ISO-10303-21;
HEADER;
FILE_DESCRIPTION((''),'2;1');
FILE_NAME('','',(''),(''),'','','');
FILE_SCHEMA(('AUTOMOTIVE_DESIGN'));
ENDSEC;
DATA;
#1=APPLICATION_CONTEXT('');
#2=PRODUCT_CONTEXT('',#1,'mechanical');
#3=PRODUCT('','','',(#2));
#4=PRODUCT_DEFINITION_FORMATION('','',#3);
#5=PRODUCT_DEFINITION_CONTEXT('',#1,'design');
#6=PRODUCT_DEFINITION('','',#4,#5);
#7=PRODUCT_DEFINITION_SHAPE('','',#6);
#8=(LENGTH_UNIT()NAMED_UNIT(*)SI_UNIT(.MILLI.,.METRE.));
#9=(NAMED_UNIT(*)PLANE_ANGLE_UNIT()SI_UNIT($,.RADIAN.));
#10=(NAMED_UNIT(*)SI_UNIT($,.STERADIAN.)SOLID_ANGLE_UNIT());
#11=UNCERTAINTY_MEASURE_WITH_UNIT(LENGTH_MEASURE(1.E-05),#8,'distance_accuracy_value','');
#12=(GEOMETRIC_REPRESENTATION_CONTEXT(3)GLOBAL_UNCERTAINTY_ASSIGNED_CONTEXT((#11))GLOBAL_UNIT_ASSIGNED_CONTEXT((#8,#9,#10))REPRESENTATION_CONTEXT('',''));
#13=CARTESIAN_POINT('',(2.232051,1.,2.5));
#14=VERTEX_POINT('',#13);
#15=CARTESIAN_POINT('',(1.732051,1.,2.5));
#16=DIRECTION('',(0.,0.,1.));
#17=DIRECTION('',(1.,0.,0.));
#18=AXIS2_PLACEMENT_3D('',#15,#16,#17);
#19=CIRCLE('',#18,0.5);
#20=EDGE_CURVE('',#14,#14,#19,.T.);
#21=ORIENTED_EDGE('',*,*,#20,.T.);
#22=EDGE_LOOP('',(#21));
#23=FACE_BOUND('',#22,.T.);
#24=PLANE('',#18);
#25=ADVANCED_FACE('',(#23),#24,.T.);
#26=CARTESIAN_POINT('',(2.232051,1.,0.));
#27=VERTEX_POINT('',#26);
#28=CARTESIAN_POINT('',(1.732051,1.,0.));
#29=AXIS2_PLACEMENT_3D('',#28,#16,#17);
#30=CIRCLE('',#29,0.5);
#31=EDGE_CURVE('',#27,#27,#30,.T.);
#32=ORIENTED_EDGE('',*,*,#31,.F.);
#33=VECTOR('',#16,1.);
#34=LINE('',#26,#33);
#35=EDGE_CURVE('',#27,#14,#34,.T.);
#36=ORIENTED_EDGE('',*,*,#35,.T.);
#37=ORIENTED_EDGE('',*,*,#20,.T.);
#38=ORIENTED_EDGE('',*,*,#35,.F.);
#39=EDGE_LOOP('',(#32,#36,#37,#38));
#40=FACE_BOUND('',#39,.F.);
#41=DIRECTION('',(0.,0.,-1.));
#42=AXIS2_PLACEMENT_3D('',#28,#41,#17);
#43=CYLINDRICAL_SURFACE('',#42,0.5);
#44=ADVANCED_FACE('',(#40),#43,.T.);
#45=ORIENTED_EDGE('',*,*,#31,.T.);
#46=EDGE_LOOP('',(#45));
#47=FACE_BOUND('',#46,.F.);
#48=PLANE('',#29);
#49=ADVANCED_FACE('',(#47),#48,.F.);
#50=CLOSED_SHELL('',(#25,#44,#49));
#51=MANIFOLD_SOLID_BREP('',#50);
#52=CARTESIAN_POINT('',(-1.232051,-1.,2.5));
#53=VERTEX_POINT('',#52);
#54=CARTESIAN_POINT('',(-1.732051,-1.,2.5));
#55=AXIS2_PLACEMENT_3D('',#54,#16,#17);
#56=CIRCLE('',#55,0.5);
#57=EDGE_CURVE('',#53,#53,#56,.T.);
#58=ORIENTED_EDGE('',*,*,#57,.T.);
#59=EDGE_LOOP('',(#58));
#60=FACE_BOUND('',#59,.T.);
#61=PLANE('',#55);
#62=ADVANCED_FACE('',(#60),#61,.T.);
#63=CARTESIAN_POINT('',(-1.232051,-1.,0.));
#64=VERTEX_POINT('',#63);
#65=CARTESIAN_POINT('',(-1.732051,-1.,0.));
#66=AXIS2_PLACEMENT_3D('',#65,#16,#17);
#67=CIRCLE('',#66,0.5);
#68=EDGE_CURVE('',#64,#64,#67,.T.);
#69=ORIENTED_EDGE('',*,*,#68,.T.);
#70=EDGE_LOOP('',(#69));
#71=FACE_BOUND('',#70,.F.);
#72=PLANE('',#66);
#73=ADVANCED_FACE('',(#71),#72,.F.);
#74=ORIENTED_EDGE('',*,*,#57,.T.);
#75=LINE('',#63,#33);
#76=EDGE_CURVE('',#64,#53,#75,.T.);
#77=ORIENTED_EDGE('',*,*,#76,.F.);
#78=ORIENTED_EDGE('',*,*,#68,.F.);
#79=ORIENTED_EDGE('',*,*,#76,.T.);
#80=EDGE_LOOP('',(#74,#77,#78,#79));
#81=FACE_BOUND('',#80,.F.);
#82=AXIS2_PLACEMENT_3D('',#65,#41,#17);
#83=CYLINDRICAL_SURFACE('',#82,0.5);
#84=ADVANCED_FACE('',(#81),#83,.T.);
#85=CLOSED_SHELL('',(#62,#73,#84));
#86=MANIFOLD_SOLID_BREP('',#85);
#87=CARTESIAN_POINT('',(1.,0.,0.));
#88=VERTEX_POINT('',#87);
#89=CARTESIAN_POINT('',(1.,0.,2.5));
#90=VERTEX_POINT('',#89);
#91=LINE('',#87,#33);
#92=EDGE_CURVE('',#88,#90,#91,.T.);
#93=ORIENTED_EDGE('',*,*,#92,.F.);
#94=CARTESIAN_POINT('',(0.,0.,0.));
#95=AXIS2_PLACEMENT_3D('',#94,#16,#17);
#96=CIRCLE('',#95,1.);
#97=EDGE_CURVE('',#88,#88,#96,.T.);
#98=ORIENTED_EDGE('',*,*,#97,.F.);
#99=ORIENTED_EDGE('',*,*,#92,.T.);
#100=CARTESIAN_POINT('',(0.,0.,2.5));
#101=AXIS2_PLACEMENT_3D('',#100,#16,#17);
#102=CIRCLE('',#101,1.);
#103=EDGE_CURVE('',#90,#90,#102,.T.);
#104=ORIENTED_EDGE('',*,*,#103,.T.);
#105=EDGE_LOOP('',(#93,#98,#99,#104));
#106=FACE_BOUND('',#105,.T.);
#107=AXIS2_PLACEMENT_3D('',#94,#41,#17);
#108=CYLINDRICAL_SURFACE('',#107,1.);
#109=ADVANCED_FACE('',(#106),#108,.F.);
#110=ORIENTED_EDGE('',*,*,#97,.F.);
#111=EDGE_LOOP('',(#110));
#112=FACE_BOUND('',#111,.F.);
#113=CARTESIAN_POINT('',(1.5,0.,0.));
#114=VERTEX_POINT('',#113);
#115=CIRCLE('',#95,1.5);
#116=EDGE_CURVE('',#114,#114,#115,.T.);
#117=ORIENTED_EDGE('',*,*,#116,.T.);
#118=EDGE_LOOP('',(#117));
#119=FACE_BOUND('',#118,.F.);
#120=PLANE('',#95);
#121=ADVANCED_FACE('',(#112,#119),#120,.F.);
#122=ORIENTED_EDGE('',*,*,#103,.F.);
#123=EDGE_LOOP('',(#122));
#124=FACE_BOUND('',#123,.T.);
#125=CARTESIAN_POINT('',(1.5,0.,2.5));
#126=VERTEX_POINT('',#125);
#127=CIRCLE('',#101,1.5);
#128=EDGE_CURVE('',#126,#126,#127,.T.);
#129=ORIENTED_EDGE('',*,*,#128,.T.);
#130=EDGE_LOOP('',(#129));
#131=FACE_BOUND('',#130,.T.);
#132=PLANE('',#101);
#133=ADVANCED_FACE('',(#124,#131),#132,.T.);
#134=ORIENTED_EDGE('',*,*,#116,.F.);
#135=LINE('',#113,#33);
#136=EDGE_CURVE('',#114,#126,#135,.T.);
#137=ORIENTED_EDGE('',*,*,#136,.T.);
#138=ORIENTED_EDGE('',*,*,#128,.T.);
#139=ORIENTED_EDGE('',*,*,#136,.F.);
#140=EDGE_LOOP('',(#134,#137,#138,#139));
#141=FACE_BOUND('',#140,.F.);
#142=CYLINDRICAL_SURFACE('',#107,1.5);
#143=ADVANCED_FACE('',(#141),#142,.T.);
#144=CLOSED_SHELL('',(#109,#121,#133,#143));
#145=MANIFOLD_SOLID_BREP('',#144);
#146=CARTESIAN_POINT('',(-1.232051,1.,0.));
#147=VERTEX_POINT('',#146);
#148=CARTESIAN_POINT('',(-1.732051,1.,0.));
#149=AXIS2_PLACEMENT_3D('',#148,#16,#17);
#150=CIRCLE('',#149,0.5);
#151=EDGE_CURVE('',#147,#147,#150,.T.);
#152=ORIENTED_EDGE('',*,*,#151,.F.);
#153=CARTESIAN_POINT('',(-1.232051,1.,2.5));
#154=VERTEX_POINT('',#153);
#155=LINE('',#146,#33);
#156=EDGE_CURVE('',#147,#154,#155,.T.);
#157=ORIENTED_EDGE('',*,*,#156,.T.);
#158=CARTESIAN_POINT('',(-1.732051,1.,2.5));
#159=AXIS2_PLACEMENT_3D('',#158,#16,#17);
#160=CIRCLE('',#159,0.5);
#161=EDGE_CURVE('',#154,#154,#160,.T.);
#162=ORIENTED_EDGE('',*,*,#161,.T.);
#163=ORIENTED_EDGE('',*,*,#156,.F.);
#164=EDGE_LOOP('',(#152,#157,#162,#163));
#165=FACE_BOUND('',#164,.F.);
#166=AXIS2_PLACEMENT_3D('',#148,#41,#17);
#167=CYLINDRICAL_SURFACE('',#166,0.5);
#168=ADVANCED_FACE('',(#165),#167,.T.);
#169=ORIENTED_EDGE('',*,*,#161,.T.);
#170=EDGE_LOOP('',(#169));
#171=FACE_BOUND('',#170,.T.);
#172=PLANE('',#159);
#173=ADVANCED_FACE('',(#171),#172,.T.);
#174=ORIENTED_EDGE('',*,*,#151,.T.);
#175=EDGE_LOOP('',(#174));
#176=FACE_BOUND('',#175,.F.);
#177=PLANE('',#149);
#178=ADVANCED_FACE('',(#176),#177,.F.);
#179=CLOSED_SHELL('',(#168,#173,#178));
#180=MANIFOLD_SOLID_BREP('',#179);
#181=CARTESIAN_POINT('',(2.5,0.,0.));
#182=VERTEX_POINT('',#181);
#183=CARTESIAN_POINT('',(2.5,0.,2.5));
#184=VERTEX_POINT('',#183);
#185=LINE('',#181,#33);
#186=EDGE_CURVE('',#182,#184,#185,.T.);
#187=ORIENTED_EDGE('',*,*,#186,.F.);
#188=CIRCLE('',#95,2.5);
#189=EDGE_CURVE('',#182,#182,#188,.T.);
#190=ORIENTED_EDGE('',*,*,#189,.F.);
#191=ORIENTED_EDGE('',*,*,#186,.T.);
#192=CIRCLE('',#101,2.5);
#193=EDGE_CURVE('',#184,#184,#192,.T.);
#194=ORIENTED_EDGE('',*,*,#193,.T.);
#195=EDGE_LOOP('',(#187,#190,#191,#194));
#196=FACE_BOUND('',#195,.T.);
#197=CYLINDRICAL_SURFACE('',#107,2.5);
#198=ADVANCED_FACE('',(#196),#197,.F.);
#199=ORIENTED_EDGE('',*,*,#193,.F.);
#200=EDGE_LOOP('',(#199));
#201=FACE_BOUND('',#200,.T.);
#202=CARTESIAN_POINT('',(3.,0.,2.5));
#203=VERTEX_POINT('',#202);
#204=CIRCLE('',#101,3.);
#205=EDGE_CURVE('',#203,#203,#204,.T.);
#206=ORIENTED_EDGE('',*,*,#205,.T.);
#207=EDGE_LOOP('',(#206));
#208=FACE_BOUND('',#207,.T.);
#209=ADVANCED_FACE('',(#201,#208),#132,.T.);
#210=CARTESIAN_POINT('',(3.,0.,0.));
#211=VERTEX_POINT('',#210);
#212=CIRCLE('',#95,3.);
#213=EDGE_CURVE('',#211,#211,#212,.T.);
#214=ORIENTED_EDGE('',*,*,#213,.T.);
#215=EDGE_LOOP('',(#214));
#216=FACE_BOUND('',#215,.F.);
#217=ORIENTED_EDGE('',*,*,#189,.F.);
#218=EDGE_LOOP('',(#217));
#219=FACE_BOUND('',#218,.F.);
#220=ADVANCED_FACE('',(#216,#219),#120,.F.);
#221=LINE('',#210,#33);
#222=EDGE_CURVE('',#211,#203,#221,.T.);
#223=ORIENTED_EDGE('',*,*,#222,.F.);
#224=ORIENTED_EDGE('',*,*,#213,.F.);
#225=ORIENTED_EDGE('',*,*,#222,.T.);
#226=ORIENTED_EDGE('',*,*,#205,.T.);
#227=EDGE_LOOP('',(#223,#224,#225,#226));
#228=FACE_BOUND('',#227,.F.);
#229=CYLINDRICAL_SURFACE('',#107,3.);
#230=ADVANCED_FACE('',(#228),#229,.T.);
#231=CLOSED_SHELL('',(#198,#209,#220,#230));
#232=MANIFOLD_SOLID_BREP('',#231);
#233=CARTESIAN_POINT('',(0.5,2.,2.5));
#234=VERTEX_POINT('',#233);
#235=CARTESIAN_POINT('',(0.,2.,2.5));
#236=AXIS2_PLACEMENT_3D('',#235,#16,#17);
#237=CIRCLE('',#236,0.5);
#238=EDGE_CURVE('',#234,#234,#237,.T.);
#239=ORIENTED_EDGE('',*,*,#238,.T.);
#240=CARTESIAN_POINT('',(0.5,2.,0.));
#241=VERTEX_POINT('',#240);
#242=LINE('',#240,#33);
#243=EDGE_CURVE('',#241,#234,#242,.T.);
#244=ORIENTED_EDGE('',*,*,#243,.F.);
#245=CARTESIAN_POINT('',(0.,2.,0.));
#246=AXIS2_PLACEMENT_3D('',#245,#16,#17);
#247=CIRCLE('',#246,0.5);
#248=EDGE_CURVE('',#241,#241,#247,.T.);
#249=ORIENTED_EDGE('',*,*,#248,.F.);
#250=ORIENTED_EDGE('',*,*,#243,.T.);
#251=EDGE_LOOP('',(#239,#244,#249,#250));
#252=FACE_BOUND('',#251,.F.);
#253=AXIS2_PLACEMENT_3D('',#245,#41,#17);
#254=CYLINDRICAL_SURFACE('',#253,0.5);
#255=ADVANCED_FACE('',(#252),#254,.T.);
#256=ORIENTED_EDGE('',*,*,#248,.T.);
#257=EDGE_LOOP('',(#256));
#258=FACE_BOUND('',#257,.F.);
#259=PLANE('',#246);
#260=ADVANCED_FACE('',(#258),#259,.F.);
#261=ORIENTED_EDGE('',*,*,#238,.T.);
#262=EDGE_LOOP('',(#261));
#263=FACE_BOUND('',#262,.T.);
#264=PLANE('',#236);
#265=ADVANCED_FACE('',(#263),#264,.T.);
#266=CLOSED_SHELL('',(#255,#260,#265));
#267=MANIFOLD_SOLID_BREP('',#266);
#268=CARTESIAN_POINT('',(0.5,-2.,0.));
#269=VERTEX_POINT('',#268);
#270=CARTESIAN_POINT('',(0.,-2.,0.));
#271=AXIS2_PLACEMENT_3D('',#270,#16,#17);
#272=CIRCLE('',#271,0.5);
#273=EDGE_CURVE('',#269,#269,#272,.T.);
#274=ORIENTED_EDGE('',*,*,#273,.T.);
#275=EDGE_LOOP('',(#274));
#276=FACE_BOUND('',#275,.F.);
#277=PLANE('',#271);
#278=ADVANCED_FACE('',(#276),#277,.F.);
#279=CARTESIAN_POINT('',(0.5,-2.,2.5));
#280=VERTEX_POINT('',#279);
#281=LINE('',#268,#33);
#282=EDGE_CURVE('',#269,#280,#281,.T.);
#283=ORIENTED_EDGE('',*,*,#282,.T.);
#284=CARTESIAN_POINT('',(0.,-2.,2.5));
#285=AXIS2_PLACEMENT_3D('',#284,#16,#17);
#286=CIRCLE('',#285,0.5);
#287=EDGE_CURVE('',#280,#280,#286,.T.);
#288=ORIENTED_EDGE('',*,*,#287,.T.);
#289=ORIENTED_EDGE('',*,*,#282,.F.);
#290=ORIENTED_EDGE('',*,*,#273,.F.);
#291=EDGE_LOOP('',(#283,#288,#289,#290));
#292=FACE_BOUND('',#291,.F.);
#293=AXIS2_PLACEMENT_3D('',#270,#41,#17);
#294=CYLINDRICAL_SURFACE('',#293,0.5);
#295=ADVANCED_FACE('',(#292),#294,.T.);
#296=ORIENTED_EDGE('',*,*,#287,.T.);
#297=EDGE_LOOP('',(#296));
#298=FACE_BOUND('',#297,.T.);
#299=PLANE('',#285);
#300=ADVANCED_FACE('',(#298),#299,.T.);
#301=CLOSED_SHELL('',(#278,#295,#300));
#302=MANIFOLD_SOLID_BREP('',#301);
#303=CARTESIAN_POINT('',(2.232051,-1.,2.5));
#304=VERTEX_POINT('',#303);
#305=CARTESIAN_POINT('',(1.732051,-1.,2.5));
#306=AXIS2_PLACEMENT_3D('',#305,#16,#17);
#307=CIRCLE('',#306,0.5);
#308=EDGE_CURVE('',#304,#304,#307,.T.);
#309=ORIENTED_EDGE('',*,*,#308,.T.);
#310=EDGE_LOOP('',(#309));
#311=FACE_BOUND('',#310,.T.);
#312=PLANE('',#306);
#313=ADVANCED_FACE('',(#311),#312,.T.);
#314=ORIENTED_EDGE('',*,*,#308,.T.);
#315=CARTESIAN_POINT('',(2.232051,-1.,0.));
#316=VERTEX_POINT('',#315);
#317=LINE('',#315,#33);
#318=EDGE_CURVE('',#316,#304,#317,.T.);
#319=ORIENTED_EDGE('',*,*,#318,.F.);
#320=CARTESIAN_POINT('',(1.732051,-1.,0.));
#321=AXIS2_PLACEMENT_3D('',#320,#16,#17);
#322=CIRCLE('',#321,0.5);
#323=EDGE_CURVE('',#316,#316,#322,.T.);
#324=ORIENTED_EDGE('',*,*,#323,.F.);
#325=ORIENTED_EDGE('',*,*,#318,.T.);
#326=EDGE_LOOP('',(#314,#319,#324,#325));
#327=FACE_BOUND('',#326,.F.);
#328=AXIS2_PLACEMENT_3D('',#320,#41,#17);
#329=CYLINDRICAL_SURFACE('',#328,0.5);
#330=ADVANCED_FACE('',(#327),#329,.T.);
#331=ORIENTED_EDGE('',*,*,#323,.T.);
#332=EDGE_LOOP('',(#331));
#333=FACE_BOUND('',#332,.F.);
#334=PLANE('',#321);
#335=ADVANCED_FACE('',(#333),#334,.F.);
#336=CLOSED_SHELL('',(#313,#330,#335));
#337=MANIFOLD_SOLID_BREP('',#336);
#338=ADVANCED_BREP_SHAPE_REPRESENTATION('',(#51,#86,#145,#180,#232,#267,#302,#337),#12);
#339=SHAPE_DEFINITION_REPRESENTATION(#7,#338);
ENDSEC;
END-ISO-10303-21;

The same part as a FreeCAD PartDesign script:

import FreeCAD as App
import Part
import Sketcher

V = App.Vector
Q = App.Units.Quantity

doc = App.newDocument("Part")
params = doc.addObject("Spreadsheet::Sheet", "Params")
for row, (alias, value) in enumerate([
    ("sketch1_diameter", "3 mm"),
    ("sketch1_diameter2", "2 mm"),
    ("pad1_length", "2.5 mm"),
    ("sketch2_diameter", "1 mm"),
    ("pad2_length", "2.5 mm"),
    ("sketch3_diameter", "6 mm"),
    ("sketch3_diameter2", "5 mm"),
    ("pad3_length", "2.5 mm"),
    ("sketch4_diameter", "1 mm"),
    ("pad4_length", "2.5 mm"),
    ("sketch5_diameter", "1 mm"),
    ("pad5_length", "2.5 mm"),
    ("sketch6_diameter", "1 mm"),
    ("pad6_length", "2.5 mm"),
    ("sketch7_diameter", "1 mm"),
    ("pad7_length", "2.5 mm"),
    ("sketch8_diameter", "1 mm"),
    ("pad8_length", "2.5 mm"),
], start=1):
    params.set(f"A{row}", alias)
    params.set(f"B{row}", "=" + value)
    params.setAlias(f"B{row}", alias)

body = doc.addObject("PartDesign::Body", "Body")

sketch1 = body.newObject("Sketcher::SketchObject", "Sketch")
sketch1.AttachmentSupport = (doc.getObject("XY_Plane"), [""])
sketch1.MapMode = "FlatFace"
sketch1.addGeometry([
    Part.Circle(V(0, 0, 0), V(0, 0, 1), 1.5),
    Part.Circle(V(0, 0, 0), V(0, 0, 1), 1),
], False)
sketch1.addConstraint([
    Sketcher.Constraint("Coincident", 0, 3, -1, 1),
    Sketcher.Constraint("Coincident", 1, 3, -1, 1),
    Sketcher.Constraint("Diameter", 0, Q("3 mm")),
    Sketcher.Constraint("Diameter", 1, Q("2 mm")),
])
sketch1.setExpression("Constraints[2]", "Params.sketch1_diameter")
sketch1.setExpression("Constraints[3]", "Params.sketch1_diameter2")
pad1 = body.newObject("PartDesign::Pad", "Pad")
pad1.Profile = sketch1
pad1.setExpression("Length", "Params.pad1_length")
body2 = doc.addObject("PartDesign::Body", "Body001")

sketch2 = body2.newObject("Sketcher::SketchObject", "Sketch001")
sketch2.AttachmentSupport = (doc.getObject("XY_Plane001"), [""])
sketch2.MapMode = "FlatFace"
sketch2.addGeometry(Part.Circle(V(0, 2, 0), V(0, 0, 1), 0.5), False)
sketch2.addConstraint([
    Sketcher.Constraint("PointOnObject", 0, 3, -2),
    Sketcher.Constraint("Diameter", 0, Q("1 mm")),
    Sketcher.Constraint("DistanceY", -1, 1, 0, 3, Q("2 mm")),
])
sketch2.setExpression("Constraints[1]", "Params.sketch2_diameter")
pad2 = body2.newObject("PartDesign::Pad", "Pad001")
pad2.Profile = sketch2
pad2.setExpression("Length", "Params.pad2_length")
body3 = doc.addObject("PartDesign::Body", "Body002")

sketch3 = body3.newObject("Sketcher::SketchObject", "Sketch002")
sketch3.AttachmentSupport = (doc.getObject("XY_Plane002"), [""])
sketch3.MapMode = "FlatFace"
sketch3.addGeometry([
    Part.Circle(V(0, 0, 0), V(0, 0, 1), 3),
    Part.Circle(V(0, 0, 0), V(0, 0, 1), 2.5),
], False)
sketch3.addConstraint([
    Sketcher.Constraint("Coincident", 0, 3, -1, 1),
    Sketcher.Constraint("Coincident", 1, 3, -1, 1),
    Sketcher.Constraint("Diameter", 0, Q("6 mm")),
    Sketcher.Constraint("Diameter", 1, Q("5 mm")),
])
sketch3.setExpression("Constraints[2]", "Params.sketch3_diameter")
sketch3.setExpression("Constraints[3]", "Params.sketch3_diameter2")
pad3 = body3.newObject("PartDesign::Pad", "Pad002")
pad3.Profile = sketch3
pad3.setExpression("Length", "Params.pad3_length")
body4 = doc.addObject("PartDesign::Body", "Body003")

sketch4 = body4.newObject("Sketcher::SketchObject", "Sketch003")
sketch4.AttachmentSupport = (doc.getObject("XY_Plane003"), [""])
sketch4.MapMode = "FlatFace"
sketch4.addGeometry(Part.Circle(V(-1.7, 1, 0), V(0, 0, 1), 0.5), False)
sketch4.addConstraint([
    Sketcher.Constraint("Diameter", 0, Q("1 mm")),
    Sketcher.Constraint("DistanceY", -1, 1, 0, 3, Q("1 mm")),
    Sketcher.Constraint("DistanceX", 0, 3, -1, 1, Q("1.732051 mm")),
])
sketch4.setExpression("Constraints[0]", "Params.sketch4_diameter")
pad4 = body4.newObject("PartDesign::Pad", "Pad003")
pad4.Profile = sketch4
pad4.setExpression("Length", "Params.pad4_length")
body5 = doc.addObject("PartDesign::Body", "Body004")

sketch5 = body5.newObject("Sketcher::SketchObject", "Sketch004")
sketch5.AttachmentSupport = (doc.getObject("XY_Plane004"), [""])
sketch5.MapMode = "FlatFace"
sketch5.addGeometry(Part.Circle(V(1.7, 1, 0), V(0, 0, 1), 0.5), False)
sketch5.addConstraint([
    Sketcher.Constraint("Diameter", 0, Q("1 mm")),
    Sketcher.Constraint("DistanceY", -1, 1, 0, 3, Q("1 mm")),
    Sketcher.Constraint("DistanceX", -1, 1, 0, 3, Q("1.732051 mm")),
])
sketch5.setExpression("Constraints[0]", "Params.sketch5_diameter")
pad5 = body5.newObject("PartDesign::Pad", "Pad004")
pad5.Profile = sketch5
pad5.setExpression("Length", "Params.pad5_length")
body6 = doc.addObject("PartDesign::Body", "Body005")

sketch6 = body6.newObject("Sketcher::SketchObject", "Sketch005")
sketch6.AttachmentSupport = (doc.getObject("XY_Plane005"), [""])
sketch6.MapMode = "FlatFace"
sketch6.addGeometry(Part.Circle(V(1.7, -1, 0), V(0, 0, 1), 0.5), False)
sketch6.addConstraint([
    Sketcher.Constraint("Diameter", 0, Q("1 mm")),
    Sketcher.Constraint("DistanceY", 0, 3, -1, 1, Q("1 mm")),
    Sketcher.Constraint("DistanceX", -1, 1, 0, 3, Q("1.732051 mm")),
])
sketch6.setExpression("Constraints[0]", "Params.sketch6_diameter")
pad6 = body6.newObject("PartDesign::Pad", "Pad005")
pad6.Profile = sketch6
pad6.setExpression("Length", "Params.pad6_length")
body7 = doc.addObject("PartDesign::Body", "Body006")

sketch7 = body7.newObject("Sketcher::SketchObject", "Sketch006")
sketch7.AttachmentSupport = (doc.getObject("XY_Plane006"), [""])
sketch7.MapMode = "FlatFace"
sketch7.addGeometry(Part.Circle(V(0, -2, 0), V(0, 0, 1), 0.5), False)
sketch7.addConstraint([
    Sketcher.Constraint("PointOnObject", 0, 3, -2),
    Sketcher.Constraint("Diameter", 0, Q("1 mm")),
    Sketcher.Constraint("DistanceY", 0, 3, -1, 1, Q("2 mm")),
])
sketch7.setExpression("Constraints[1]", "Params.sketch7_diameter")
pad7 = body7.newObject("PartDesign::Pad", "Pad006")
pad7.Profile = sketch7
pad7.setExpression("Length", "Params.pad7_length")
body8 = doc.addObject("PartDesign::Body", "Body007")

sketch8 = body8.newObject("Sketcher::SketchObject", "Sketch007")
sketch8.AttachmentSupport = (doc.getObject("XY_Plane007"), [""])
sketch8.MapMode = "FlatFace"
sketch8.addGeometry(Part.Circle(V(-1.7, -1, 0), V(0, 0, 1), 0.5), False)
sketch8.addConstraint([
    Sketcher.Constraint("Diameter", 0, Q("1 mm")),
    Sketcher.Constraint("DistanceY", 0, 3, -1, 1, Q("1 mm")),
    Sketcher.Constraint("DistanceX", 0, 3, -1, 1, Q("1.732051 mm")),
])
sketch8.setExpression("Constraints[0]", "Params.sketch8_diameter")
pad8 = body8.newObject("PartDesign::Pad", "Pad007")
pad8.Profile = sketch8
pad8.setExpression("Length", "Params.pad8_length")

doc.recompute()
